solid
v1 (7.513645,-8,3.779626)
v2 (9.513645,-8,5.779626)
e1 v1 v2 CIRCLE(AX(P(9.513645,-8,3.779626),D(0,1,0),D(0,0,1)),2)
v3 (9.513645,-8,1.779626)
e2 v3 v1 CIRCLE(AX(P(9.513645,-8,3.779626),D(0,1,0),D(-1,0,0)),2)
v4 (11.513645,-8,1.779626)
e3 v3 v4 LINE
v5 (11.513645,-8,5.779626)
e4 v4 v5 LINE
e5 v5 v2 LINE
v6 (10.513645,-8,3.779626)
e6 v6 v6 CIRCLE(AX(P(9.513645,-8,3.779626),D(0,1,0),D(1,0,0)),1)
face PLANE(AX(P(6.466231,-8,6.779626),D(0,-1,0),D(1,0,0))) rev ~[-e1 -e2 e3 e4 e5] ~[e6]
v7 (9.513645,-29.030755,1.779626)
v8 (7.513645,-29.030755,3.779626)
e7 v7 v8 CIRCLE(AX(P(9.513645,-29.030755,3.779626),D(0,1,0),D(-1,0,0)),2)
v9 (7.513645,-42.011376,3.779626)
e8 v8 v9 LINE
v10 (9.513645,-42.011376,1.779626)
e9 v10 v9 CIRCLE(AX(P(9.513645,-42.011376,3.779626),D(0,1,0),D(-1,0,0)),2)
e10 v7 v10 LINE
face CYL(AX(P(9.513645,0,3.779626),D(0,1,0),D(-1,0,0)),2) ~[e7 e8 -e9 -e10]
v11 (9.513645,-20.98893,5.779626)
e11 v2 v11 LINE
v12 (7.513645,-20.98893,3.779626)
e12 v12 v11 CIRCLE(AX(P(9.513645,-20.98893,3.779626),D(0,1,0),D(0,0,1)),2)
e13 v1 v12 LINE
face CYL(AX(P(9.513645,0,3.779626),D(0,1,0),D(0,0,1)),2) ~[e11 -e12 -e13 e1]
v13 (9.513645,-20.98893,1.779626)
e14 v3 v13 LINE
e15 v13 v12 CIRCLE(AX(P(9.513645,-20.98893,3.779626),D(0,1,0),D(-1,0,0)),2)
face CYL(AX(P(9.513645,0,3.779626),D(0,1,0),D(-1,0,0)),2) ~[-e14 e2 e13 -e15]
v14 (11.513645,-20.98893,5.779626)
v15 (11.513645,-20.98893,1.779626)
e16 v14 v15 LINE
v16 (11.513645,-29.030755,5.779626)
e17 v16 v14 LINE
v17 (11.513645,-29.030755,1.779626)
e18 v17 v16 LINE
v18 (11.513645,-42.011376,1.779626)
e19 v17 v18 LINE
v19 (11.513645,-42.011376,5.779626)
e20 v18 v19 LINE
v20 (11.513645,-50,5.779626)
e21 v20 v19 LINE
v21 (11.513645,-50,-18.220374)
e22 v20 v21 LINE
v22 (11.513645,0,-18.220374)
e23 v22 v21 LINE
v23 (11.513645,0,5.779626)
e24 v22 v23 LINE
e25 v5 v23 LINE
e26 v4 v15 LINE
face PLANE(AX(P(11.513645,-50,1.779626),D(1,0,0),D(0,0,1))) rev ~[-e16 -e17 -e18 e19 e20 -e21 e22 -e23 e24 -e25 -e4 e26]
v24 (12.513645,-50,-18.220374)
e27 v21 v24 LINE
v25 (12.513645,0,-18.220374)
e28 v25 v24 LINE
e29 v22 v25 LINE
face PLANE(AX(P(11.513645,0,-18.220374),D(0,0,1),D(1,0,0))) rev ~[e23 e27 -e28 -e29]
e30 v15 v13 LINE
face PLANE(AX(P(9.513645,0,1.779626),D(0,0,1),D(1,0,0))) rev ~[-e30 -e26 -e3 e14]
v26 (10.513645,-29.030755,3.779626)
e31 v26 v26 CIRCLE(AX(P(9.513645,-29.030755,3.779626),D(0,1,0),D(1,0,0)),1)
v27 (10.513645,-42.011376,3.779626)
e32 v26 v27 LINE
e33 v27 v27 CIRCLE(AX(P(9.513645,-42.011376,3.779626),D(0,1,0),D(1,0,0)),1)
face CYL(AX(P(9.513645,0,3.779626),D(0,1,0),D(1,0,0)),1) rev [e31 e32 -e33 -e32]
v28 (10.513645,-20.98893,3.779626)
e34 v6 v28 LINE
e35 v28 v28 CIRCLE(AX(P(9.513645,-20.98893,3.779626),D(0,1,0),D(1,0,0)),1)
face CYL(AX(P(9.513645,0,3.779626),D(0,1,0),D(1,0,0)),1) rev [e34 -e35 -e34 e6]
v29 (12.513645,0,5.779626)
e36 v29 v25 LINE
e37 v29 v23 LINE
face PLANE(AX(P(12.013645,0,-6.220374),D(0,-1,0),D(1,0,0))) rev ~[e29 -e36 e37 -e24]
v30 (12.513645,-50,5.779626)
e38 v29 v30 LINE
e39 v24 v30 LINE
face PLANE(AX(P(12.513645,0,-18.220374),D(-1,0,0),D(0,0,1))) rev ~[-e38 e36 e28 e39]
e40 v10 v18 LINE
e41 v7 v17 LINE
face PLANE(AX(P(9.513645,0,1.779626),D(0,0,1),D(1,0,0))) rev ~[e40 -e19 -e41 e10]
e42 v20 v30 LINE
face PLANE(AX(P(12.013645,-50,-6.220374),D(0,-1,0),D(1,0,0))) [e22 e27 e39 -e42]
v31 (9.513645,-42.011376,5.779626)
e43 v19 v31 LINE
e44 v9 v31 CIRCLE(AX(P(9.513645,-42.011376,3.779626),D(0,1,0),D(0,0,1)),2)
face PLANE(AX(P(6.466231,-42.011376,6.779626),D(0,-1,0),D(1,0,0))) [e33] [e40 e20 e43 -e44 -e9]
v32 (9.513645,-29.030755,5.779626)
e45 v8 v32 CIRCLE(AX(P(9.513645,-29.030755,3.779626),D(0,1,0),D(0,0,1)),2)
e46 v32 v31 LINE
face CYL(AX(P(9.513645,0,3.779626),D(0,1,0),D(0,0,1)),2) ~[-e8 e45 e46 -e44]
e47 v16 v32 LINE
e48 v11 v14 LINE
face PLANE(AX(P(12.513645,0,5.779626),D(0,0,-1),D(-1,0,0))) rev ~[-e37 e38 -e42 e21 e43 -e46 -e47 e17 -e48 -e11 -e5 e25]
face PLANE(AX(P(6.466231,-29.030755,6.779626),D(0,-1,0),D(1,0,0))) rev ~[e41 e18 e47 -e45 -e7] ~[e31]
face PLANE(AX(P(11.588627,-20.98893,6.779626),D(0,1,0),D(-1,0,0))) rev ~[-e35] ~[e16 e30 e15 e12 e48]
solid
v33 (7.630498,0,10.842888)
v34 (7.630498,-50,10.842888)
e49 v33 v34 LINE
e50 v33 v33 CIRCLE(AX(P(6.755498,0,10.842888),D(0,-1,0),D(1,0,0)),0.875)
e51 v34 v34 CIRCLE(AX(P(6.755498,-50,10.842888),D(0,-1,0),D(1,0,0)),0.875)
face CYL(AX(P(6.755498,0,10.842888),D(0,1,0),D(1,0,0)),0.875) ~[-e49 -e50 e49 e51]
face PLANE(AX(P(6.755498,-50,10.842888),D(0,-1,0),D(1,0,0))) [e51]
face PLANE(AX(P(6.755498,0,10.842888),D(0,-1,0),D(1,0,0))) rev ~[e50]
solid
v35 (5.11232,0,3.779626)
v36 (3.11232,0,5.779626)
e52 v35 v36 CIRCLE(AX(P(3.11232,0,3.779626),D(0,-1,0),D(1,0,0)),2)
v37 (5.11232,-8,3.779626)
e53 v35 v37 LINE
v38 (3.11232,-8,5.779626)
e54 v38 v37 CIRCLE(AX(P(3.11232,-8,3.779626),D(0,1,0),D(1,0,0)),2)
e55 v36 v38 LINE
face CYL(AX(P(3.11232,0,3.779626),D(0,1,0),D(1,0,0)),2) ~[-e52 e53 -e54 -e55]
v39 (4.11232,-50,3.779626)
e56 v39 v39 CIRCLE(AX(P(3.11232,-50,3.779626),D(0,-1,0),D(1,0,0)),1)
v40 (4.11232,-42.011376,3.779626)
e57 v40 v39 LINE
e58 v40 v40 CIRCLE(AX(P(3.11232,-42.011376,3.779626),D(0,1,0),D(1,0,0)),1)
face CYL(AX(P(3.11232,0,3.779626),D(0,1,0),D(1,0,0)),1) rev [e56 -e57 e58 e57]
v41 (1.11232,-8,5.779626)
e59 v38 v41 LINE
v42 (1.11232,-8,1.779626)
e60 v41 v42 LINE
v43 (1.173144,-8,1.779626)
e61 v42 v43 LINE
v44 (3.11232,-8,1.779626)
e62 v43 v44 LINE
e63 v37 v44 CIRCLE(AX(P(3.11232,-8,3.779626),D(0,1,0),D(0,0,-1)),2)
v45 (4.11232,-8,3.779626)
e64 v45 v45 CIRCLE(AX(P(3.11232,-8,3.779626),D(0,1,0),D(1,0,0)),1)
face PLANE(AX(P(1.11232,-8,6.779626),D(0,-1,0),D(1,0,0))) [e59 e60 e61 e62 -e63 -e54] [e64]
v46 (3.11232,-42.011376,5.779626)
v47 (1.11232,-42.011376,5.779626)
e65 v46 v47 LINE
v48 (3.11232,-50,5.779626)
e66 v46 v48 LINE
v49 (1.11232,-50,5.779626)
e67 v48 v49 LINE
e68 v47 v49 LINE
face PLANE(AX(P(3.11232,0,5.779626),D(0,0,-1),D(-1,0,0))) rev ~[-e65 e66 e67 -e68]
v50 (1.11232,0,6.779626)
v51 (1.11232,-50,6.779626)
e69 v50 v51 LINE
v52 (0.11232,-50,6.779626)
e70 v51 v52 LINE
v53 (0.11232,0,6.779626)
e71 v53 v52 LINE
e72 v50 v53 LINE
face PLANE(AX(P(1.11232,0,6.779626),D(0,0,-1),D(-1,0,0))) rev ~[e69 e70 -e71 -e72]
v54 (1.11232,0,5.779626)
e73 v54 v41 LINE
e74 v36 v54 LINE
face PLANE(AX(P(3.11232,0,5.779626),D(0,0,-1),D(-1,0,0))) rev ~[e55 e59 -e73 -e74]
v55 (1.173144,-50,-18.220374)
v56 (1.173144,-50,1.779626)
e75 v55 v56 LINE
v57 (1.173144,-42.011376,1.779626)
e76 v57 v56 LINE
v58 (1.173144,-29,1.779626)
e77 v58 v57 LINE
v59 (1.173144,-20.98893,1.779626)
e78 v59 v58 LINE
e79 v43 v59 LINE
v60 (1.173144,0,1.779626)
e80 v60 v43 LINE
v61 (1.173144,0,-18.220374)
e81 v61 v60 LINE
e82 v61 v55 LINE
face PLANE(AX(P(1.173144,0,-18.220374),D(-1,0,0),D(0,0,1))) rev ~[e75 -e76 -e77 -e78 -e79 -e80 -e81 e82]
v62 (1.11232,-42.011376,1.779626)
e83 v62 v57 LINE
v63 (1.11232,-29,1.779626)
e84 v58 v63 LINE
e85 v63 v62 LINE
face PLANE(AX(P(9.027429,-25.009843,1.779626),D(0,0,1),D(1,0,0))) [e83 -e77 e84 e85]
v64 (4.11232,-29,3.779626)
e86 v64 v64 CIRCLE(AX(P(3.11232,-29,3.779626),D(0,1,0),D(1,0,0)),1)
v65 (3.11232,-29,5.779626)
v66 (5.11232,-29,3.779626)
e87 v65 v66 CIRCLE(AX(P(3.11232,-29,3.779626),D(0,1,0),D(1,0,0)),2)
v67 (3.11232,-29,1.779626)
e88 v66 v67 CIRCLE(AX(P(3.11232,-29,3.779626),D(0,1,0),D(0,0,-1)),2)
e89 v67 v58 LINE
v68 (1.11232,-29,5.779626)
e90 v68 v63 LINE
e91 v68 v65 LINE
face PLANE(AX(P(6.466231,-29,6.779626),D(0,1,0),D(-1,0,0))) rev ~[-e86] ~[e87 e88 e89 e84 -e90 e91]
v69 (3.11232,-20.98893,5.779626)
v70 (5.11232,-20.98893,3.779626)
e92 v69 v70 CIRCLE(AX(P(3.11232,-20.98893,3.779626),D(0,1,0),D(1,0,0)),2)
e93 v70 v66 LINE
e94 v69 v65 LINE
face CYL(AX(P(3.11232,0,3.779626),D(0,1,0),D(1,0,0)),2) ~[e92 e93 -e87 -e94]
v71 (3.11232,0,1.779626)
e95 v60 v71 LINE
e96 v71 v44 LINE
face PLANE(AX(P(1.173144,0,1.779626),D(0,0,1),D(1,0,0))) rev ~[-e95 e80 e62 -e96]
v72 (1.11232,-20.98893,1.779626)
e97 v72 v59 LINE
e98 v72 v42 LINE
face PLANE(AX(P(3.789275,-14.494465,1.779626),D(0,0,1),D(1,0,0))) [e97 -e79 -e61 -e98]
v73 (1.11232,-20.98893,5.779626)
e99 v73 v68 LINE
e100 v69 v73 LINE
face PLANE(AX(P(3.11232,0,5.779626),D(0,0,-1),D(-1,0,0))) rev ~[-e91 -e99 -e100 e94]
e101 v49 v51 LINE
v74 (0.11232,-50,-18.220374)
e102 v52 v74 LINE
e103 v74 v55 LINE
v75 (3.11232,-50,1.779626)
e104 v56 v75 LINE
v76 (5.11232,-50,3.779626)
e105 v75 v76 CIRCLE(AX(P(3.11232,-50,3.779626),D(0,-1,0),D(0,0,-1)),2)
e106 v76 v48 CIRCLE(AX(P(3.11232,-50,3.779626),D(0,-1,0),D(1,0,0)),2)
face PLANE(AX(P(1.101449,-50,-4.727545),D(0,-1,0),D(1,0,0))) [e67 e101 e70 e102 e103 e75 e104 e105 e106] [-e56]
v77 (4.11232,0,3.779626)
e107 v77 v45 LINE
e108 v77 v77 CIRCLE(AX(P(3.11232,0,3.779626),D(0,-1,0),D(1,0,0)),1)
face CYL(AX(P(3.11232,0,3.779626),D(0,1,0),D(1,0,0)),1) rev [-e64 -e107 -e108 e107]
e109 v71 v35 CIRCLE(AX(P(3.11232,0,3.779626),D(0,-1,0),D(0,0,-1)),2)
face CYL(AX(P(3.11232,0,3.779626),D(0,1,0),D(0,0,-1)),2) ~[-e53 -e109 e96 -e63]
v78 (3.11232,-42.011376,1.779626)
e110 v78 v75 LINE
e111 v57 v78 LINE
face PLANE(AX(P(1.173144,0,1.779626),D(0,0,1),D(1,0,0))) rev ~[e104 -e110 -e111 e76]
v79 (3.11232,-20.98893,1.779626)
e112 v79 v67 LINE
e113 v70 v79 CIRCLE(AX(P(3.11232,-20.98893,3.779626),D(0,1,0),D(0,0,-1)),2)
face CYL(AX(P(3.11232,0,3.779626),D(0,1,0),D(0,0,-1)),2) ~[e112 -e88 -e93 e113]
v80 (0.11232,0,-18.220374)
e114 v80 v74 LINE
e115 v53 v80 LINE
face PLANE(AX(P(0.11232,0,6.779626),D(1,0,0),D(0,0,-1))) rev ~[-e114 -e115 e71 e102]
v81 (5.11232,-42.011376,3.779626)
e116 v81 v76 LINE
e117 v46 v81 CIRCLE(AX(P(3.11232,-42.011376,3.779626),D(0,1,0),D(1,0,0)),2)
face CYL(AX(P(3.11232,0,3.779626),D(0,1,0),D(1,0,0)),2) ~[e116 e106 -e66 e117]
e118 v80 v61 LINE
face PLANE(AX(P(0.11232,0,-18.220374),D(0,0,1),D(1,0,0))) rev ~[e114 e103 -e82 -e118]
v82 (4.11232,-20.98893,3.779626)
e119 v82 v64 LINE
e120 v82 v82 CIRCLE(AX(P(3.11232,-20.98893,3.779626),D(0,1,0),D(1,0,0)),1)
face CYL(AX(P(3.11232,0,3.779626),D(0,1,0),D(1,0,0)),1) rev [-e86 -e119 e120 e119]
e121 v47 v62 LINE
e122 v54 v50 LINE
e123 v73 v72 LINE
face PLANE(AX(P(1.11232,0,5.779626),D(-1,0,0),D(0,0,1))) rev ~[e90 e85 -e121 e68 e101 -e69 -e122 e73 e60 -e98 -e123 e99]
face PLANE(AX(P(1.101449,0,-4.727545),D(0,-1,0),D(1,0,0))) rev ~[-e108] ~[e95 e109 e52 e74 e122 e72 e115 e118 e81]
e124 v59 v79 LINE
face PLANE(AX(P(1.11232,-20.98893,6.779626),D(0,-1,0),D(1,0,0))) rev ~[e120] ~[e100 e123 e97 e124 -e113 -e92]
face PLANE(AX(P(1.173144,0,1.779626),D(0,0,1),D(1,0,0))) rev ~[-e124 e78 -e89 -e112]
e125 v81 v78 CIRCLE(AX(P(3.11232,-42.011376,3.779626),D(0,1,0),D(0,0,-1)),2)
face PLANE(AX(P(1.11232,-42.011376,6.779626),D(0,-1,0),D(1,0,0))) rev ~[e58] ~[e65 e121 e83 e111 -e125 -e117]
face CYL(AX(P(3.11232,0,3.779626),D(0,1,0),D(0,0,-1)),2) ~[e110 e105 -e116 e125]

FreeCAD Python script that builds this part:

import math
import FreeCAD as App
import Part
import Sketcher

V = App.Vector
Q = App.Units.Quantity


def add_polygon(sketch, points):
    """Adds a closed chain of lines whose ends are joined by coincident constraints."""
    first, n = sketch.GeometryCount, len(points)
    for a, b in zip(points, points[1:] + points[:1]):
        sketch.addGeometry(Part.LineSegment(App.Vector(*a, 0), App.Vector(*b, 0)), False)
    for i in range(n):
        sketch.addConstraint(Sketcher.Constraint("Coincident", first + i, 2, first + (i + 1) % n, 1))

doc = App.newDocument("Part")
body = doc.addObject("PartDesign::Body", "Body")

# Sketch on XZ plane
sketch1 = body.newObject("Sketcher::SketchObject", "Sketch")
sketch1.AttachmentSupport = (doc.getObject("XZ_Plane"), [""])
sketch1.MapMode = "FlatFace"
sketch1.addGeometry([
    Part.LineSegment(V(11.513645, -18.220374, 0), V(12.513645, -18.220374, 0)),  # 0
    Part.LineSegment(V(12.513645, -18.220374, 0), V(12.513645, 5.779626, 0)),  # 1
    Part.LineSegment(V(12.513645, 5.779626, 0), V(9.513645, 5.779626, 0)),  # 2
    Part.ArcOfCircle(Part.Circle(V(9.513645, 3.779626, 0), V(0, 0, 1), 2), math.radians(90), math.radians(180)),  # 3
    Part.ArcOfCircle(Part.Circle(V(9.513645, 3.779626, 0), V(0, 0, 1), 2), math.radians(180), math.radians(270)),  # 4
    Part.LineSegment(V(9.513645, 1.779626, 0), V(11.513645, 1.779626, 0)),  # 5
    Part.LineSegment(V(11.513645, 1.779626, 0), V(11.513645, -18.220374, 0)),  # 6
    Part.Circle(V(9.513645, 3.779626, 0), V(0, 0, 1), 1),  # 7
], False)
sketch1.addConstraint([
    Sketcher.Constraint("Coincident", 0, 2, 1, 1),
    Sketcher.Constraint("Coincident", 1, 2, 2, 1),
    Sketcher.Constraint("Tangent", 2, 2, 3, 1),
    Sketcher.Constraint("Tangent", 3, 2, 4, 1),
    Sketcher.Constraint("Tangent", 4, 2, 5, 1),
    Sketcher.Constraint("Coincident", 5, 2, 6, 1),
    Sketcher.Constraint("Coincident", 6, 2, 0, 1),
    Sketcher.Constraint("Horizontal", 0),
    Sketcher.Constraint("Vertical", 1),
    Sketcher.Constraint("Horizontal", 2),
    Sketcher.Constraint("Horizontal", 5),
    Sketcher.Constraint("Vertical", 6),
    Sketcher.Constraint("Coincident", 7, 3, 3, 3),
    Sketcher.Constraint("Equal", 3, 4),
    Sketcher.Constraint("Horizontal", 7, 3, 3, 2),
    Sketcher.Constraint("Diameter", 7, Q("2 mm")),
    Sketcher.Constraint("Radius", 3, Q("2 mm")),
    Sketcher.Constraint("DistanceX", 0, 1, 0, 2, Q("1 mm")),
    Sketcher.Constraint("DistanceX", 2, 2, 2, 1, Q("3 mm")),
    Sketcher.Constraint("DistanceY", 1, 1, 1, 2, Q("24 mm")),
    Sketcher.Constraint("DistanceX", -1, 1, 3, 3, Q("9.513645 mm")),
    Sketcher.Constraint("DistanceY", -1, 1, 3, 3, Q("3.779626 mm")),
])
pad1 = body.newObject("PartDesign::Pad", "Pad")
pad1.Profile = sketch1
pad1.Length = 50
body2 = doc.addObject("PartDesign::Body", "Body001")

# Sketch on XZ plane
sketch2 = body2.newObject("Sketcher::SketchObject", "Sketch001")
sketch2.AttachmentSupport = (doc.getObject("XZ_Plane001"), [""])
sketch2.MapMode = "FlatFace"
sketch2.addGeometry([
    Part.LineSegment(V(18.69695, 5.779626, 0), V(18.69695, 6.779626, 0)),  # 0
    Part.LineSegment(V(18.69695, 6.779626, 0), V(17.69695, 6.779626, 0)),  # 1
    Part.LineSegment(V(17.69695, 6.779626, 0), V(17.69695, -18.220374, 0)),  # 2
    Part.LineSegment(V(17.69695, -18.220374, 0), V(18.757774, -18.220374, 0)),  # 3
    Part.LineSegment(V(18.757774, -18.220374, 0), V(18.757774, 1.779626, 0)),  # 4
    Part.LineSegment(V(18.757774, 1.779626, 0), V(20.69695, 1.779626, 0)),  # 5
    Part.ArcOfCircle(Part.Circle(V(20.69695, 3.779626, 0), V(0, 0, 1), 2), math.radians(-90), math.radians(0)),  # 6
    Part.ArcOfCircle(Part.Circle(V(20.69695, 3.779626, 0), V(0, 0, 1), 2), math.radians(0), math.radians(90)),  # 7
    Part.LineSegment(V(20.69695, 5.779626, 0), V(18.69695, 5.779626, 0)),  # 8
    Part.Circle(V(20.69695, 3.779626, 0), V(0, 0, 1), 1),  # 9
], False)
sketch2.addConstraint([
    Sketcher.Constraint("Coincident", 0, 2, 1, 1),
    Sketcher.Constraint("Coincident", 1, 2, 2, 1),
    Sketcher.Constraint("Coincident", 2, 2, 3, 1),
    Sketcher.Constraint("Coincident", 3, 2, 4, 1),
    Sketcher.Constraint("Coincident", 4, 2, 5, 1),
    Sketcher.Constraint("Tangent", 5, 2, 6, 1),
    Sketcher.Constraint("Tangent", 6, 2, 7, 1),
    Sketcher.Constraint("Tangent", 7, 2, 8, 1),
    Sketcher.Constraint("Coincident", 8, 2, 0, 1),
    Sketcher.Constraint("Vertical", 0),
    Sketcher.Constraint("Horizontal", 1),
    Sketcher.Constraint("Vertical", 2),
    Sketcher.Constraint("Horizontal", 3),
    Sketcher.Constraint("Vertical", 4),
    Sketcher.Constraint("Horizontal", 5),
    Sketcher.Constraint("Horizontal", 8),
    Sketcher.Constraint("Coincident", 9, 3, 6, 3),
    Sketcher.Constraint("Equal", 6, 7),
    Sketcher.Constraint("Horizontal", 9, 3, 6, 2),
    Sketcher.Constraint("Equal", 1, 0),
    Sketcher.Constraint("Diameter", 9, Q("2 mm")),
    Sketcher.Constraint("Radius", 6, Q("2 mm")),
    Sketcher.Constraint("DistanceX", 1, 2, 1, 1, Q("1 mm")),
    Sketcher.Constraint("DistanceX", 8, 2, 8, 1, Q("2 mm")),
    Sketcher.Constraint("DistanceY", 2, 2, 2, 1, Q("25 mm")),
    Sketcher.Constraint("DistanceX", 3, 1, 3, 2, Q("1.060825 mm")),
    Sketcher.Constraint("DistanceX", -1, 1, 6, 3, Q("20.69695 mm")),
    Sketcher.Constraint("DistanceY", -1, 1, 6, 3, Q("3.779626 mm")),
])
pad2 = body2.newObject("PartDesign::Pad", "Pad001")
pad2.Profile = sketch2
pad2.Length = 50
body3 = doc.addObject("PartDesign::Body", "Body002")
doc.recompute()

body2.Placement = App.Placement(V(-17.58463, 0, 0), App.Rotation(V(0, 0, 1), 0))
boolean = body3.newObject("PartDesign::Boolean", "Boolean")
boolean.Type = "Fuse"
boolean.addObjects([body2])
body4 = doc.addObject("PartDesign::Body", "Body003")
body4.AllowCompound = True

# Sketch on XY plane
sketch3 = body4.newObject("Sketcher::SketchObject", "Sketch002")
sketch3.AttachmentSupport = (doc.getObject("XY_Plane003"), [""])
sketch3.MapMode = "FlatFace"
sketch3.AttachmentOffset = App.Placement(V(0, 0, 6.779626), App.Rotation())
add_polygon(sketch3, [(6.466231, 0), (6.466231, -8), (11.588627, -8), (11.588627, 0)])  # lines 0-3
add_polygon(sketch3, [(1.11232, -8), (1.11232, -20.98893), (6.466231, -20.98893), (6.466231, -8)])  # lines 4-7
add_polygon(sketch3, [(6.466231, -42.011376), (6.466231, -50.117776), (11.588627, -50.117776), (11.588627, -42.011376)])  # lines 8-11
add_polygon(sketch3, [(11.588627, -20.98893), (6.466231, -20.98893), (6.466231, -29), (1.11232, -29), (1.11232, -42.011376), (6.466231, -42.011376), (6.466231, -29.030755), (11.588627, -29.030755)])  # lines 12-19
sketch3.addConstraint([
    Sketcher.Constraint("Vertical", 0),
    Sketcher.Constraint("Horizontal", 1),
    Sketcher.Constraint("Vertical", 2),
    Sketcher.Constraint("Horizontal", 3),
    Sketcher.Constraint("Vertical", 4),
    Sketcher.Constraint("Horizontal", 5),
    Sketcher.Constraint("Vertical", 6),
    Sketcher.Constraint("Horizontal", 7),
    Sketcher.Constraint("Vertical", 8),
    Sketcher.Constraint("Horizontal", 9),
    Sketcher.Constraint("Vertical", 10),
    Sketcher.Constraint("Horizontal", 11),
    Sketcher.Constraint("Horizontal", 12),
    Sketcher.Constraint("Vertical", 13),
    Sketcher.Constraint("Horizontal", 14),
    Sketcher.Constraint("Vertical", 15),
    Sketcher.Constraint("Horizontal", 16),
    Sketcher.Constraint("Vertical", 17),
    Sketcher.Constraint("Horizontal", 18),
    Sketcher.Constraint("Vertical", 19),
    Sketcher.Constraint("Coincident", 6, 2, 0, 2),
    Sketcher.Constraint("Coincident", 12, 2, 5, 2),
    Sketcher.Constraint("Coincident", 16, 2, 11, 2),
    Sketcher.Constraint("PointOnObject", 2, 2, -1),
    Sketcher.Constraint("Vertical", 6, 2, 8, 2),
    Sketcher.Constraint("Vertical", 2, 2, 9, 2),
    Sketcher.Constraint("Vertical", 7, 2, 14, 2),
    Sketcher.Constraint("Vertical", 10, 2, 18, 2),
    Sketcher.Constraint("DistanceY", 0, 2, 0, 1, Q("8 mm")),
    Sketcher.Constraint("DistanceY", 13, 2, -1, 1, Q("29 mm")),
    Sketcher.Constraint("DistanceY", 8, 2, 8, 1, Q("8.106399 mm")),
    Sketcher.Constraint("DistanceX", 5, 1, 5, 2, Q("5.353911 mm")),
    Sketcher.Constraint("DistanceY", 4, 2, 4, 1, Q("12.98893 mm")),
    Sketcher.Constraint("DistanceY", 17, 1, 17, 2, Q("12.980621 mm")),
    Sketcher.Constraint("DistanceX", 1, 1, 1, 2, Q("5.122396 mm")),
    Sketcher.Constraint("DistanceY", 15, 2, 15, 1, Q("13.011376 mm")),
    Sketcher.Constraint("DistanceX", -1, 1, 0, 2, Q("6.466231 mm")),
])
pad3 = body4.newObject("PartDesign::Pad", "Pad002")
pad3.Profile = sketch3
pad3.Length = 5
pad3.Reversed = True
doc.recompute()

body5 = doc.addObject("PartDesign::Body", "Body004")
body5.BaseFeature = body4
boolean2 = body.newObject("PartDesign::Boolean", "Boolean001")
boolean2.Type = "Cut"
boolean2.addObjects([body5])
doc.recompute()

# Sketch on XZ plane
sketch4 = body.newObject("Sketcher::SketchObject", "Sketch003")
sketch4.AttachmentSupport = (doc.getObject("XZ_Plane"), [""])
sketch4.MapMode = "FlatFace"
sketch4.AttachmentOffset = App.Placement(V(0, 0, 50), App.Rotation())
add_polygon(sketch4, [(11.513645, 5.779626), (11.513645, 1.779626), (12.513645, 1.779626), (12.513645, 5.779626)])  # lines 0-3
sketch4.addConstraint([
    Sketcher.Constraint("Vertical", 0),
    Sketcher.Constraint("Horizontal", 1),
    Sketcher.Constraint("Vertical", 2),
    Sketcher.Constraint("Horizontal", 3),
    Sketcher.Constraint("DistanceX", 1, 1, 1, 2, Q("1 mm")),
    Sketcher.Constraint("DistanceY", 0, 2, 0, 1, Q("4 mm")),
    Sketcher.Constraint("DistanceX", -1, 1, 0, 2, Q("11.513645 mm")),
    Sketcher.Constraint("DistanceY", -1, 1, 0, 2, Q("1.779626 mm")),
])
pad4 = body.newObject("PartDesign::Pad", "Pad003")
pad4.Profile = sketch4
pad4.Length = 50
pad4.Reversed = True
doc.recompute()

boolean3 = body3.newObject("PartDesign::Boolean", "Boolean002")
boolean3.Type = "Cut"
boolean3.addObjects([body4])
body6 = doc.addObject("PartDesign::Body", "Body005")

# Sketch on XZ plane
sketch5 = body6.newObject("Sketcher::SketchObject", "Sketch004")
sketch5.AttachmentSupport = (doc.getObject("XZ_Plane005"), [""])
sketch5.MapMode = "FlatFace"
sketch5.addGeometry(Part.Circle(V(6.755498, 10.842888, 0), V(0, 0, 1), 0.875), False)
sketch5.addConstraint([
    Sketcher.Constraint("Diameter", 0, Q("1.75 mm")),
    Sketcher.Constraint("DistanceX", -1, 1, 0, 3, Q("6.755498 mm")),
    Sketcher.Constraint("DistanceY", -1, 1, 0, 3, Q("10.842888 mm")),
])
pad5 = body6.newObject("PartDesign::Pad", "Pad004")
pad5.Profile = sketch5
pad5.Length = 50

doc.recompute()
